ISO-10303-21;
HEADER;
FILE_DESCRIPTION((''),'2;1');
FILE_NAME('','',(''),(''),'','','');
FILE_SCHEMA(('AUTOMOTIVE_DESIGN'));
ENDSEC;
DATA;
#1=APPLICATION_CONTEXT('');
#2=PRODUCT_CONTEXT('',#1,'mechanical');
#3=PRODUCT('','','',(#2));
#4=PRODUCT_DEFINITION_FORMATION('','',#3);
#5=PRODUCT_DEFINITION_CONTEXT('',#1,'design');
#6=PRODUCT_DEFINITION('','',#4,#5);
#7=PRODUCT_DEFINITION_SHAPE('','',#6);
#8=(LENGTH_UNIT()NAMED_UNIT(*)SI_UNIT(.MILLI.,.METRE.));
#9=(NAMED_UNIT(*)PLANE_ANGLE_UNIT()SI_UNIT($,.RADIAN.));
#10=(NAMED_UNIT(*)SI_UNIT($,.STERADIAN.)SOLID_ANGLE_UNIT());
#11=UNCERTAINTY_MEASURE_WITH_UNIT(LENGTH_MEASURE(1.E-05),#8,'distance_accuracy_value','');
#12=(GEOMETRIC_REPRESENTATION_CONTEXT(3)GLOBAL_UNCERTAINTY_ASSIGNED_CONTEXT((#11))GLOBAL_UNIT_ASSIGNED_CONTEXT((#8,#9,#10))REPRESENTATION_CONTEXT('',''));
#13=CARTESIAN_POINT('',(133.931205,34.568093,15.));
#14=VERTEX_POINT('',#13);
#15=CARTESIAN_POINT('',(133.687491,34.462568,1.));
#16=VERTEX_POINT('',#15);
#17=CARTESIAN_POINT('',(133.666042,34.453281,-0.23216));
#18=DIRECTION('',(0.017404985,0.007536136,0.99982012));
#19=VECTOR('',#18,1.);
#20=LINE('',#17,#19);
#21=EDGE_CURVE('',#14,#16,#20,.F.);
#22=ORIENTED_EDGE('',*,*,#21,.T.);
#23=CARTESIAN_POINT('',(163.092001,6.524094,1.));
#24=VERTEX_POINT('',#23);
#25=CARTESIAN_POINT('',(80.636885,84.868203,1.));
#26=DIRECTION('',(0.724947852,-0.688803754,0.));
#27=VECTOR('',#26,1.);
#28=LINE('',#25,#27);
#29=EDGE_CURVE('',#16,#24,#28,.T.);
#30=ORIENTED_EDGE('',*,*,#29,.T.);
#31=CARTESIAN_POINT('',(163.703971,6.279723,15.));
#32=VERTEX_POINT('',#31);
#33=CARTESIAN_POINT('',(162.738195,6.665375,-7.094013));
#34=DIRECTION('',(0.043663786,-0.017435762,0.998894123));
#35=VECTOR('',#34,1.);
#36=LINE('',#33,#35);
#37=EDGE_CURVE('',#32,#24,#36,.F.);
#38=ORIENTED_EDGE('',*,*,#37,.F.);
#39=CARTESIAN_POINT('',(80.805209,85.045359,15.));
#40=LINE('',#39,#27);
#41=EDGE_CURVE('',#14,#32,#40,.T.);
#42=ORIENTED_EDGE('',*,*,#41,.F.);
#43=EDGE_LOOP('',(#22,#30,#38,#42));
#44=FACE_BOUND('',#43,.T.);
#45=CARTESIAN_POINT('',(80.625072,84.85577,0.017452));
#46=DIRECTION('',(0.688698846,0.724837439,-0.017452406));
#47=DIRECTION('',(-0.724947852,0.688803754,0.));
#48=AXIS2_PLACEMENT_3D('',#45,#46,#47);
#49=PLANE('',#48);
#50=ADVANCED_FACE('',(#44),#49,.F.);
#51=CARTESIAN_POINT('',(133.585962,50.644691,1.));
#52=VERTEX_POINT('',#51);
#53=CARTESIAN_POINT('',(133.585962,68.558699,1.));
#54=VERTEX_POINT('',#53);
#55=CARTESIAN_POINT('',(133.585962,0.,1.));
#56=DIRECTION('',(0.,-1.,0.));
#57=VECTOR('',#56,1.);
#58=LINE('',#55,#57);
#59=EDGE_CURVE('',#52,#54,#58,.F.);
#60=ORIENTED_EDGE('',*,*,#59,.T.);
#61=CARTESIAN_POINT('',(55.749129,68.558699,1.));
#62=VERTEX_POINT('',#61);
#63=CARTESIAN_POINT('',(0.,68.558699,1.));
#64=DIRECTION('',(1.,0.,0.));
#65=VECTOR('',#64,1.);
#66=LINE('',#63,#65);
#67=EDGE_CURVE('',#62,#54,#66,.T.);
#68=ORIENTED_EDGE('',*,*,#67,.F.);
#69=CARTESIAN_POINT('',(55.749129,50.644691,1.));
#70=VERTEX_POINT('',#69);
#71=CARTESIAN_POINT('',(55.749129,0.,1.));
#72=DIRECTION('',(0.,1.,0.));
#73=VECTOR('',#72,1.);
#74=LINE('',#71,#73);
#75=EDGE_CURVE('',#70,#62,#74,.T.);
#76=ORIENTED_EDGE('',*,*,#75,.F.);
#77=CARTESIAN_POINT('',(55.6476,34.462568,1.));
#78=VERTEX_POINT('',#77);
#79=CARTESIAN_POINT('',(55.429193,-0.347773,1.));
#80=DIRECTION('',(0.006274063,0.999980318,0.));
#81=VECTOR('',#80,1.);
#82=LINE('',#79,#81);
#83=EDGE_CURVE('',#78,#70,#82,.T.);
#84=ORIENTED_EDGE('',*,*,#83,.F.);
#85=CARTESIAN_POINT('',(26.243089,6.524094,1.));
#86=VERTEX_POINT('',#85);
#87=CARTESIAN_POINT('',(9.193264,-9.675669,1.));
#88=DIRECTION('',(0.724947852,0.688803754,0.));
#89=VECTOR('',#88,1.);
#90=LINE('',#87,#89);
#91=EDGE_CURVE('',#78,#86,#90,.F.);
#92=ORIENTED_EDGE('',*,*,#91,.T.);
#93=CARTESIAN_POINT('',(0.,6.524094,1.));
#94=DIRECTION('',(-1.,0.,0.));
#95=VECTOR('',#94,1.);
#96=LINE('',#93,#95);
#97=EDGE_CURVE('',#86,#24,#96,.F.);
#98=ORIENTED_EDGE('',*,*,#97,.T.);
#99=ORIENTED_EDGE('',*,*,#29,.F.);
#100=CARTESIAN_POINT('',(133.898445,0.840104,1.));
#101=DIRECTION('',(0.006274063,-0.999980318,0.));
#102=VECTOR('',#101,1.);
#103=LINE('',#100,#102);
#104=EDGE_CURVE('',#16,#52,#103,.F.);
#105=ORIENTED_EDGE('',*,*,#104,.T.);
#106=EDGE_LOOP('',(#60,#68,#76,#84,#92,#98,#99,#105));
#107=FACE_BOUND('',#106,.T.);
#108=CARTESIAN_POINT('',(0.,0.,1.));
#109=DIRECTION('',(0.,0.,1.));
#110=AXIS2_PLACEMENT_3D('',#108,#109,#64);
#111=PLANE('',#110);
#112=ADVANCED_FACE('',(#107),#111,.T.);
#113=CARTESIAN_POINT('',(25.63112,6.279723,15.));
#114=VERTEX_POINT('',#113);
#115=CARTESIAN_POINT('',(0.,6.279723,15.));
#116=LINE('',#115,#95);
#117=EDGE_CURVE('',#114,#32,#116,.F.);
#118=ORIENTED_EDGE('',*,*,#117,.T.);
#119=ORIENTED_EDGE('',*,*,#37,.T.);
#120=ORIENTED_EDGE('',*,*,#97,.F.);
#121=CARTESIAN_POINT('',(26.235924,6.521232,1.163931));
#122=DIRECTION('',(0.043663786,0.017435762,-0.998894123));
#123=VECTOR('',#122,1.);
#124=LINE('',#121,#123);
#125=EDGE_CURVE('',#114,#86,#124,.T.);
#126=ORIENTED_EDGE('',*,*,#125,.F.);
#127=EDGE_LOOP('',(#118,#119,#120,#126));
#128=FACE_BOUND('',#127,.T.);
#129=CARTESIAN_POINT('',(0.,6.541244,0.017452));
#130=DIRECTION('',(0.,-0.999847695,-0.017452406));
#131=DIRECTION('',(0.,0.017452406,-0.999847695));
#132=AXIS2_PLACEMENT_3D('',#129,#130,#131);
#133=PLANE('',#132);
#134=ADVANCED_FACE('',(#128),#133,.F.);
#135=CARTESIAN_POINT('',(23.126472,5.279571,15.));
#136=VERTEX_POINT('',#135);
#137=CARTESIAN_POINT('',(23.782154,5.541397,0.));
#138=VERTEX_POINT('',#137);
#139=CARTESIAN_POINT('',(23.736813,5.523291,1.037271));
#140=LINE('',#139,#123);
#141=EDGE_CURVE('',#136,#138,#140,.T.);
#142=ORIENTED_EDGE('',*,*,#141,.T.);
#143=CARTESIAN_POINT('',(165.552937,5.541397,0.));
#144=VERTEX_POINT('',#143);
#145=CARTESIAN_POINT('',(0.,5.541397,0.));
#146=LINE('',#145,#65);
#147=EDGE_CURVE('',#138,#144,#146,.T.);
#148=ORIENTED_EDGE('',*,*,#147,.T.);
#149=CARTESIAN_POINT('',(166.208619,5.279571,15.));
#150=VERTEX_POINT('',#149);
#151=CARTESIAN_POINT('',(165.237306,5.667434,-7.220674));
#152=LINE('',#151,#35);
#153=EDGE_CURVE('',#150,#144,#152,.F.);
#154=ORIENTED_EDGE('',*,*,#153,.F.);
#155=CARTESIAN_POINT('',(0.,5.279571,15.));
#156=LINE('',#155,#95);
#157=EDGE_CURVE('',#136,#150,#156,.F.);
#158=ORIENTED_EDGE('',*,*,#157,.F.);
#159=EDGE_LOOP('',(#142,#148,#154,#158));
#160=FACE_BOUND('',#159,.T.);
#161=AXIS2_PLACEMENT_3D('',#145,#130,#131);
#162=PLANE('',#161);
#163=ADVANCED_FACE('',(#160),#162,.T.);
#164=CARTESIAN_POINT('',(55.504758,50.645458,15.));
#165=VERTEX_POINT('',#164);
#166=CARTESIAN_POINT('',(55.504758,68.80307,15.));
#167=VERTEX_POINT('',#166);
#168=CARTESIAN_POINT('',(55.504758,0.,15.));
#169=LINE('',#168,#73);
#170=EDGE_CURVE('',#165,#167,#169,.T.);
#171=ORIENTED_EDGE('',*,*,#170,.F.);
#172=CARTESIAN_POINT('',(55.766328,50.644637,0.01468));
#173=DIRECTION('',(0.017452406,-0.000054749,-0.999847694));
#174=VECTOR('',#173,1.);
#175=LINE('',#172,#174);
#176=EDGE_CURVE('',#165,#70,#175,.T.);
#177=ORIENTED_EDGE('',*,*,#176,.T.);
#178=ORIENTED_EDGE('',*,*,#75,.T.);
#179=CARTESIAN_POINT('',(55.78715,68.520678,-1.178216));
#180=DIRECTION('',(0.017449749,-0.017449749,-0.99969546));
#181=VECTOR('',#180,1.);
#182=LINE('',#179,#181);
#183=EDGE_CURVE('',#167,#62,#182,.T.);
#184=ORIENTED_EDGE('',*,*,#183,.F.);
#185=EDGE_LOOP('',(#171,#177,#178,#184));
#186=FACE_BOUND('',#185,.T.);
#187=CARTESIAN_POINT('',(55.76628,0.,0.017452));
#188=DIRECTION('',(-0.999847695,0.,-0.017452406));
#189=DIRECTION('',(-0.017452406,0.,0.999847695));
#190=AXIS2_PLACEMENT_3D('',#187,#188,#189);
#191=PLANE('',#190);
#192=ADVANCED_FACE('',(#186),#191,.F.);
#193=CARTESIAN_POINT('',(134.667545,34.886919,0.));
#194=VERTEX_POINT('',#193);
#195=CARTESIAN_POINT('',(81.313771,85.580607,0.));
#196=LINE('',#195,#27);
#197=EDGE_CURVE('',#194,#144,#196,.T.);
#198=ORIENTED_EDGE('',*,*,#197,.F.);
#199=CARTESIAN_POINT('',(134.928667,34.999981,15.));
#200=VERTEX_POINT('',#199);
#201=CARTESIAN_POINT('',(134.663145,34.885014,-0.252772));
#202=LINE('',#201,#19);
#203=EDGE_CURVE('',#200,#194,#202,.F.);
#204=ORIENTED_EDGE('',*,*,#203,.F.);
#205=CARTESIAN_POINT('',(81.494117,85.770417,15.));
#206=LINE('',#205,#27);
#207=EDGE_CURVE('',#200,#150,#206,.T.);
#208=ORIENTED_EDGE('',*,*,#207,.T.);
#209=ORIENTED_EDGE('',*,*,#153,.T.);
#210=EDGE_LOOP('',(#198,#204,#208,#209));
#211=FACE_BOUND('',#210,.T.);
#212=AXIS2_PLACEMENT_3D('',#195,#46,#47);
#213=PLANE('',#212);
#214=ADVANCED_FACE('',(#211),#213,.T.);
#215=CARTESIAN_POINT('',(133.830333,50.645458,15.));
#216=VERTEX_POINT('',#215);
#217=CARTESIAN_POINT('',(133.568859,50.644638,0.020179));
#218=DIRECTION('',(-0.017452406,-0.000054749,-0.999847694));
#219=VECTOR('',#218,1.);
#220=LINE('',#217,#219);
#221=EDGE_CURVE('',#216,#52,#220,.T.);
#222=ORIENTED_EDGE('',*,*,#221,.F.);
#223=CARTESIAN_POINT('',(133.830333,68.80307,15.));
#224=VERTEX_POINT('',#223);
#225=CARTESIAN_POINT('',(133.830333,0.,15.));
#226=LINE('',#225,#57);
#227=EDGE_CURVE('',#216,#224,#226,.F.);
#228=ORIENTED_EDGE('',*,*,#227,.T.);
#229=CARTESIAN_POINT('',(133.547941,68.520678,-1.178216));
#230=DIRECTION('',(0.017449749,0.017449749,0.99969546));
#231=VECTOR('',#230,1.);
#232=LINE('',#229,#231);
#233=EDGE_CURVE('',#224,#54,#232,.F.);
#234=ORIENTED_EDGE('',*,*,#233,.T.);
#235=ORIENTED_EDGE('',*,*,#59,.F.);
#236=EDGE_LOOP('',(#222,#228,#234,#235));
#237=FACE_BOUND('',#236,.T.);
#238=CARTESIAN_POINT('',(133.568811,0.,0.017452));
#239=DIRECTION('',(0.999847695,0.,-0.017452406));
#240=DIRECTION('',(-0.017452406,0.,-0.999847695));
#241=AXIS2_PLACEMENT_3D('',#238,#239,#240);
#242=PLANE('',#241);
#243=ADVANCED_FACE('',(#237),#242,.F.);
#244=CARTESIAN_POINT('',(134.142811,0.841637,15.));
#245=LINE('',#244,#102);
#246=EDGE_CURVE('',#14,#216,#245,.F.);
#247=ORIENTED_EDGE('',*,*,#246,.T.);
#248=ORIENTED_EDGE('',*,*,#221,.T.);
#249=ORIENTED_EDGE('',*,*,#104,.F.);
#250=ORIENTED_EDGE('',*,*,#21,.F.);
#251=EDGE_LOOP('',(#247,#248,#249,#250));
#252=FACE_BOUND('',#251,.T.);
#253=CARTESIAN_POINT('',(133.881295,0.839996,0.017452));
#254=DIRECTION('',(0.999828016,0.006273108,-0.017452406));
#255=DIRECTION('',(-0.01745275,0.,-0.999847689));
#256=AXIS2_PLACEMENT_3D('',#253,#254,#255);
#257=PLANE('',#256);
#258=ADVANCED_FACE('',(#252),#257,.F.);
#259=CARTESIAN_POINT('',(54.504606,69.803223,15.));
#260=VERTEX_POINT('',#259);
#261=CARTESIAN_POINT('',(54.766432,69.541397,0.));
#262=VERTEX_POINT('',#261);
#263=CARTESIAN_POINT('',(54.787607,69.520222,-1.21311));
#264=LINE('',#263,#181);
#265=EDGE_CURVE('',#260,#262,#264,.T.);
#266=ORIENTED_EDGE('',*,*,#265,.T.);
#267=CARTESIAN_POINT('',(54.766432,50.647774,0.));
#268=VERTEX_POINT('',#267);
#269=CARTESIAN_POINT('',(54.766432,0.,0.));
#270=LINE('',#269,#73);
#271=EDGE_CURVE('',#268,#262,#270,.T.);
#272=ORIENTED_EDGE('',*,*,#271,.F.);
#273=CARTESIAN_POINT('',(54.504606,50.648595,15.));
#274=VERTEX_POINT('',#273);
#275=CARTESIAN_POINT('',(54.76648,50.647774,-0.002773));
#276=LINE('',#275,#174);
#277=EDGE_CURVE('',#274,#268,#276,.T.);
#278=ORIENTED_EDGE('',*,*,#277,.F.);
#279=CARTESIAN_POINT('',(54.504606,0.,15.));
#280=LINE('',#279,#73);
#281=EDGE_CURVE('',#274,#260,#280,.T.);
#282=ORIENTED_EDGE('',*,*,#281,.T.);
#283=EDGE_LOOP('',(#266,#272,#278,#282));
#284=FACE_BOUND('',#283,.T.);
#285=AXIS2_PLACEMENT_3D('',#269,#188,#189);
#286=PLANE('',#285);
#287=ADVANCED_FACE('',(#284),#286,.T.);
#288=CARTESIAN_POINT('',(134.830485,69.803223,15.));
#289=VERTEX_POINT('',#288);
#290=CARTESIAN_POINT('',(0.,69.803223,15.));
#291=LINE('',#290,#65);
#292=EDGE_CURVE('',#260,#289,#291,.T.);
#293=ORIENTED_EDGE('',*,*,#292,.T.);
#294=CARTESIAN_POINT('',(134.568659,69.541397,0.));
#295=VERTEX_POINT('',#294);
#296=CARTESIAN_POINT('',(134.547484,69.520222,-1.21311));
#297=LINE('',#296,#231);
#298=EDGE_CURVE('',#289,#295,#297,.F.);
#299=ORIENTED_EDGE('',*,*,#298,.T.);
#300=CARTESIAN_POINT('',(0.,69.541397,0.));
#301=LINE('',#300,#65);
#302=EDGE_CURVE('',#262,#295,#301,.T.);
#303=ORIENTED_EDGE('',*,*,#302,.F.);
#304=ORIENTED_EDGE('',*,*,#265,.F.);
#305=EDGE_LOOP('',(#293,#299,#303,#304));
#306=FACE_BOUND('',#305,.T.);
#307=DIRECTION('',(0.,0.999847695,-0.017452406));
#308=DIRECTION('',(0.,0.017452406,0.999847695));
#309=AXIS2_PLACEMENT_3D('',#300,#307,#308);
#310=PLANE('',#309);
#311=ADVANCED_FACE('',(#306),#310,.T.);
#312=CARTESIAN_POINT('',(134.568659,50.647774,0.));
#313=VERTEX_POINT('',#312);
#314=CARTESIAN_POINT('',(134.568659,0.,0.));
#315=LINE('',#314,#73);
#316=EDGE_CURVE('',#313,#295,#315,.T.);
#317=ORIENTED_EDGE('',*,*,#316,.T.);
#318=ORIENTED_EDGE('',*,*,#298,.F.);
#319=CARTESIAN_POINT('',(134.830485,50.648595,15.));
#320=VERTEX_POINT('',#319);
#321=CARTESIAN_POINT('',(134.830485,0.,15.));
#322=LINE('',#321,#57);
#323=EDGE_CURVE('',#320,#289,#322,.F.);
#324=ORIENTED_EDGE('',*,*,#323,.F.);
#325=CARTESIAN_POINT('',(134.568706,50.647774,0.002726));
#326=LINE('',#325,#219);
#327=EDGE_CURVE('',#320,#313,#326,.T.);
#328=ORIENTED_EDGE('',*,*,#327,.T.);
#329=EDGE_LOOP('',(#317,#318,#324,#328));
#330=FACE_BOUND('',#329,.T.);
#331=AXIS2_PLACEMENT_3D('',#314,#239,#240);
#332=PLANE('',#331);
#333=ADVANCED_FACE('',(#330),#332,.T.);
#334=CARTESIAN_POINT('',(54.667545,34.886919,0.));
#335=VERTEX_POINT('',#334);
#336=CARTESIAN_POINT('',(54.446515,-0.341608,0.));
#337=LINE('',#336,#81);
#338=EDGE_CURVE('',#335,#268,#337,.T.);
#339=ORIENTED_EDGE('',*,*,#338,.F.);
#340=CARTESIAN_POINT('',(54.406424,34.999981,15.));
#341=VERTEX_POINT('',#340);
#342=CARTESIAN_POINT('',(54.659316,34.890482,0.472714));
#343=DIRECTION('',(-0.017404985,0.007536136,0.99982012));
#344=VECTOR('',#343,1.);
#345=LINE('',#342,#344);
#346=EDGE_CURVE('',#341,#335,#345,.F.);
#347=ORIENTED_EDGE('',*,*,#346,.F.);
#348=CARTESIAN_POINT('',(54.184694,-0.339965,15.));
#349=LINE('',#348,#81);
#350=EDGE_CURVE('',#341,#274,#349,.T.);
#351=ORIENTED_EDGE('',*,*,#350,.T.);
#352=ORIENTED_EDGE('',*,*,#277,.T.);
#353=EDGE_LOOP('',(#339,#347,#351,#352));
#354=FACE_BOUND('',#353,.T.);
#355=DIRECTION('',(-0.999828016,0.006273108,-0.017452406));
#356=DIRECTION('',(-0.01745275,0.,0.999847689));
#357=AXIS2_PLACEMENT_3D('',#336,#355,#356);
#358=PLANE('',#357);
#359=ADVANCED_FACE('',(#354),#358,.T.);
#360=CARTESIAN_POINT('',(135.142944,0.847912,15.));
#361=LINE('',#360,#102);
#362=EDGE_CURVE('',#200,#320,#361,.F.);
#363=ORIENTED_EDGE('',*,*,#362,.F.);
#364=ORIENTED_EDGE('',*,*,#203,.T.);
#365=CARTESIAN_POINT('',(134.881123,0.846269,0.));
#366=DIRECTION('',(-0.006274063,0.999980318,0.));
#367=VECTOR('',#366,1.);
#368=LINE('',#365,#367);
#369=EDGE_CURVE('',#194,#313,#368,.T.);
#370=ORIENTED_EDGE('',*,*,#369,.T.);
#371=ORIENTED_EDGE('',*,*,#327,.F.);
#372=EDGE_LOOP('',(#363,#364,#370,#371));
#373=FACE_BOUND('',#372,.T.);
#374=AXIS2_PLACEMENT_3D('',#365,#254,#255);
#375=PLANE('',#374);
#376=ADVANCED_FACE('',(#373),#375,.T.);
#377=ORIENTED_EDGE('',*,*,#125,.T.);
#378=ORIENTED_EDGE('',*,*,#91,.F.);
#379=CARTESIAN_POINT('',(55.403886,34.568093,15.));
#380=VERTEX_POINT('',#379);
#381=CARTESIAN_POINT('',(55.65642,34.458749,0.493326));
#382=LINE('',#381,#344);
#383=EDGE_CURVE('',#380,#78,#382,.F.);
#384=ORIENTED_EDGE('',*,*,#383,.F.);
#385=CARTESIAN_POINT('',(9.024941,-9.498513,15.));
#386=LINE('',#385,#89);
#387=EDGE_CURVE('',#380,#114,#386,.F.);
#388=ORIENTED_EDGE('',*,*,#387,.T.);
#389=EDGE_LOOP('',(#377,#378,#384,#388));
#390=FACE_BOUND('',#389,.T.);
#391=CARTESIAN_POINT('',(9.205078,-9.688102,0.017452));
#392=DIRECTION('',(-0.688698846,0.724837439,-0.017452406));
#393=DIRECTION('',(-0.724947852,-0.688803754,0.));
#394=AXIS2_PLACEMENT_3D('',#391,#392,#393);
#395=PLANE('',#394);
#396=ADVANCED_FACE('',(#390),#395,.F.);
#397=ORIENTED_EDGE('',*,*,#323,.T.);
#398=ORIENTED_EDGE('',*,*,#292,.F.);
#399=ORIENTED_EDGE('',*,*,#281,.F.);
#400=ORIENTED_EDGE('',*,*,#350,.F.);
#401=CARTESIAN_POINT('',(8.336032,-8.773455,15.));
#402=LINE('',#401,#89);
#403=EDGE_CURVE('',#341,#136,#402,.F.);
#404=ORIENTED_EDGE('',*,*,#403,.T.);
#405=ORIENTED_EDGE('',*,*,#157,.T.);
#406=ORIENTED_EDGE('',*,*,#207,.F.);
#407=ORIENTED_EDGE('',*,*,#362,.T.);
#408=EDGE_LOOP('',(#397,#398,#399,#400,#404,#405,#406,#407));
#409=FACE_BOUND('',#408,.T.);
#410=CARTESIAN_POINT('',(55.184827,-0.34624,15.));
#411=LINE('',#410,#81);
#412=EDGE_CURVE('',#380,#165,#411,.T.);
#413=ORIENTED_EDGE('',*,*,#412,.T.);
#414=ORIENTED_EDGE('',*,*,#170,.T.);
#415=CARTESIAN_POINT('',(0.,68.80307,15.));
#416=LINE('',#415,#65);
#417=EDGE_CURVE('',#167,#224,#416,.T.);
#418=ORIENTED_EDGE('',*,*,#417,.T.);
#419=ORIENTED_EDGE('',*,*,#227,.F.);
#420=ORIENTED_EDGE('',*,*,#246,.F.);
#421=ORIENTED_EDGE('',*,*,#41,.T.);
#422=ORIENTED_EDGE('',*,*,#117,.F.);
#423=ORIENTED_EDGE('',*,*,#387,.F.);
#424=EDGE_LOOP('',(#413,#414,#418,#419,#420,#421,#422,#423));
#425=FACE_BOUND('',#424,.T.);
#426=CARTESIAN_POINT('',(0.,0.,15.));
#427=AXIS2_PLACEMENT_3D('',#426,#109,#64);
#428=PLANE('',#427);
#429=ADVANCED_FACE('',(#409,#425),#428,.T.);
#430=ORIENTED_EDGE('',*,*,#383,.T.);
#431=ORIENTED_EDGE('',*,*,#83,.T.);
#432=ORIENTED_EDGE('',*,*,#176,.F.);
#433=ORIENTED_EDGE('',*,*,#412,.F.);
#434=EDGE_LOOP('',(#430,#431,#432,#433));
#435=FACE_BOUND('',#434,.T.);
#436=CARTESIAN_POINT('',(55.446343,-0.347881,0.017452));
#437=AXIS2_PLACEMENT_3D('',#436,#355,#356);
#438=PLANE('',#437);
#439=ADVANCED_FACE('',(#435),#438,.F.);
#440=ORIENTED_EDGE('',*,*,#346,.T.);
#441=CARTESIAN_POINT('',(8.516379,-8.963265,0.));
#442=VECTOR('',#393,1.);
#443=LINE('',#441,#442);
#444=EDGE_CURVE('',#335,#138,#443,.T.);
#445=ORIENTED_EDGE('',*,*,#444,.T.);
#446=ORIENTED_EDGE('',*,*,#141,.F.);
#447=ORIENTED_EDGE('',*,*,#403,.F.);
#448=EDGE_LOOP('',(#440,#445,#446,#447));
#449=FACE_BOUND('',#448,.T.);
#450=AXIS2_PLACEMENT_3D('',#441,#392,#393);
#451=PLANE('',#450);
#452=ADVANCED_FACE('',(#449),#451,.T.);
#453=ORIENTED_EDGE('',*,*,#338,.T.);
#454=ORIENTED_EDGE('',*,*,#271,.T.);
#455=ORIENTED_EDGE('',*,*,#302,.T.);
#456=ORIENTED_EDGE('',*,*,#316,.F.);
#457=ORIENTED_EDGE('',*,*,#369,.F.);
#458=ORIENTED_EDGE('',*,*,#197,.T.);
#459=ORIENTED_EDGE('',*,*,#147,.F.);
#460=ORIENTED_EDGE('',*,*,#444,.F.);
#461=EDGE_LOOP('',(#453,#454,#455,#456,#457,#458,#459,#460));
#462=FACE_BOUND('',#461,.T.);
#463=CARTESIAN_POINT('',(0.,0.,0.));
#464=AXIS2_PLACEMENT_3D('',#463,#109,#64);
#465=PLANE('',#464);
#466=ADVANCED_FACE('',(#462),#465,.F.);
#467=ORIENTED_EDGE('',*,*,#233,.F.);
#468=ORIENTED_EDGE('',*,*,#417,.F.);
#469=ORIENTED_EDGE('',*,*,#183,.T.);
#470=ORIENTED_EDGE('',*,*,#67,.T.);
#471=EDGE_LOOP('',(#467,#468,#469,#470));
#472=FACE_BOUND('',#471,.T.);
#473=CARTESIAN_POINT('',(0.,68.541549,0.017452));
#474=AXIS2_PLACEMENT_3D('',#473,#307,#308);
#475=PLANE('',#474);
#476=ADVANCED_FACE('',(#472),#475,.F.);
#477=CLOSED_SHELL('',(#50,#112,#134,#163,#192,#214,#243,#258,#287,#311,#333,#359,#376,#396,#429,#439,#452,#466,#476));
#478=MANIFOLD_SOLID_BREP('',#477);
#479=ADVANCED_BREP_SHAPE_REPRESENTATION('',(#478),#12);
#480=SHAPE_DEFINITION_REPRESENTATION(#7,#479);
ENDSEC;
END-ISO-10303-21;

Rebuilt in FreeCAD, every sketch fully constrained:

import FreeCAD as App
import Part
import Sketcher
from FreeCAD import Vector
Q = App.Units.Quantity


def faces_at(feature, points):
    """Names of the faces that lie closest to the given points."""
    faces = feature.Shape.Faces
    near = lambda p: min(range(len(faces)), key=lambda i: faces[i].distToShape(Part.Vertex(*p))[0])
    return sorted({f"Face{near(p) + 1}" for p in points})


def add_polygon(sketch, points):
    """Adds a closed chain of lines whose ends are joined by coincident constraints."""
    first, n = sketch.GeometryCount, len(points)
    for a, b in zip(points, points[1:] + points[:1]):
        sketch.addGeometry(Part.LineSegment(App.Vector(*a, 0), App.Vector(*b, 0)), False)
    for i in range(n):
        sketch.addConstraint(Sketcher.Constraint("Coincident", first + i, 2, first + (i + 1) % n, 1))

doc = App.newDocument("Part")
body = doc.addObject("PartDesign::Body", "Body")

# Sketch on XY plane
sketch1 = body.newObject("Sketcher::SketchObject", "Sketch")
sketch1.AttachmentSupport = (doc.getObject("XY_Plane"), [""])
sketch1.MapMode = "FlatFace"
add_polygon(sketch1, [(134.568659, 69.541397), (54.766432, 69.541397), (54.766432, 50.647774), (54.667545, 34.886919), (23.782154, 5.541397), (165.552937, 5.541397), (134.667545, 34.886919), (134.568659, 50.647774)])  # lines 0-7
sketch1.addConstraint([
    Sketcher.Constraint("Horizontal", 0),
    Sketcher.Constraint("Vertical", 1),
    Sketcher.Constraint("Horizontal", 4),
    Sketcher.Constraint("Vertical", 7),
    Sketcher.Constraint("Horizontal", 2, 2, 5, 2),
    Sketcher.Constraint("Horizontal", 1, 2, 6, 2),
    Sketcher.Constraint("Equal", 3, 5),
    Sketcher.Constraint("Equal", 2, 6),
    Sketcher.Constraint("DistanceY", 3, 2, 0, 2, Q("64 mm")),
    Sketcher.Constraint("DistanceX", 2, 2, 5, 2, Q("80 mm")),
    Sketcher.Constraint("DistanceX", 0, 2, 0, 1, Q("79.802227 mm")),
    Sketcher.Constraint("DistanceX", 4, 1, 4, 2, Q("141.770783 mm")),
    Sketcher.Constraint("DistanceY", 1, 2, 1, 1, Q("18.893623 mm")),
    Sketcher.Constraint("DistanceX", -1, 1, 0, 2, Q("54.766432 mm")),
    Sketcher.Constraint("DistanceY", -1, 1, 2, 2, Q("34.886919 mm")),
    Sketcher.Constraint("Distance", 2, Q("15.761165 mm")),
])
pad1 = body.newObject("PartDesign::Pad", "Pad")
pad1.Profile = sketch1
pad1.Length = 15
doc.recompute()

draft = body.newObject("PartDesign::Draft", "Draft")
draft.Base = (pad1, faces_at(pad1, [
    (94.668, 69.541, 7.5),
    (54.766, 60.095, 7.5),
    (54.717, 42.767, 7.5),
    (39.225, 20.214, 7.5),
    (94.668, 5.541, 7.5),
    (150.11, 20.214, 7.5),
    (134.618, 42.767, 7.5),
    (134.569, 60.095, 7.5),
]))
draft.NeutralPlane = (doc.getObject("XY_Plane"), [""])
draft.Angle = 1
draft.Reversed = True
doc.recompute()

thickness = body.newObject("PartDesign::Thickness", "Thickness")
thickness.Base = (draft, faces_at(draft, [(94.668, 37.541, 15)]))
thickness.Value = 1
thickness.Reversed = True
thickness.Join = "Intersection"

doc.recompute()
